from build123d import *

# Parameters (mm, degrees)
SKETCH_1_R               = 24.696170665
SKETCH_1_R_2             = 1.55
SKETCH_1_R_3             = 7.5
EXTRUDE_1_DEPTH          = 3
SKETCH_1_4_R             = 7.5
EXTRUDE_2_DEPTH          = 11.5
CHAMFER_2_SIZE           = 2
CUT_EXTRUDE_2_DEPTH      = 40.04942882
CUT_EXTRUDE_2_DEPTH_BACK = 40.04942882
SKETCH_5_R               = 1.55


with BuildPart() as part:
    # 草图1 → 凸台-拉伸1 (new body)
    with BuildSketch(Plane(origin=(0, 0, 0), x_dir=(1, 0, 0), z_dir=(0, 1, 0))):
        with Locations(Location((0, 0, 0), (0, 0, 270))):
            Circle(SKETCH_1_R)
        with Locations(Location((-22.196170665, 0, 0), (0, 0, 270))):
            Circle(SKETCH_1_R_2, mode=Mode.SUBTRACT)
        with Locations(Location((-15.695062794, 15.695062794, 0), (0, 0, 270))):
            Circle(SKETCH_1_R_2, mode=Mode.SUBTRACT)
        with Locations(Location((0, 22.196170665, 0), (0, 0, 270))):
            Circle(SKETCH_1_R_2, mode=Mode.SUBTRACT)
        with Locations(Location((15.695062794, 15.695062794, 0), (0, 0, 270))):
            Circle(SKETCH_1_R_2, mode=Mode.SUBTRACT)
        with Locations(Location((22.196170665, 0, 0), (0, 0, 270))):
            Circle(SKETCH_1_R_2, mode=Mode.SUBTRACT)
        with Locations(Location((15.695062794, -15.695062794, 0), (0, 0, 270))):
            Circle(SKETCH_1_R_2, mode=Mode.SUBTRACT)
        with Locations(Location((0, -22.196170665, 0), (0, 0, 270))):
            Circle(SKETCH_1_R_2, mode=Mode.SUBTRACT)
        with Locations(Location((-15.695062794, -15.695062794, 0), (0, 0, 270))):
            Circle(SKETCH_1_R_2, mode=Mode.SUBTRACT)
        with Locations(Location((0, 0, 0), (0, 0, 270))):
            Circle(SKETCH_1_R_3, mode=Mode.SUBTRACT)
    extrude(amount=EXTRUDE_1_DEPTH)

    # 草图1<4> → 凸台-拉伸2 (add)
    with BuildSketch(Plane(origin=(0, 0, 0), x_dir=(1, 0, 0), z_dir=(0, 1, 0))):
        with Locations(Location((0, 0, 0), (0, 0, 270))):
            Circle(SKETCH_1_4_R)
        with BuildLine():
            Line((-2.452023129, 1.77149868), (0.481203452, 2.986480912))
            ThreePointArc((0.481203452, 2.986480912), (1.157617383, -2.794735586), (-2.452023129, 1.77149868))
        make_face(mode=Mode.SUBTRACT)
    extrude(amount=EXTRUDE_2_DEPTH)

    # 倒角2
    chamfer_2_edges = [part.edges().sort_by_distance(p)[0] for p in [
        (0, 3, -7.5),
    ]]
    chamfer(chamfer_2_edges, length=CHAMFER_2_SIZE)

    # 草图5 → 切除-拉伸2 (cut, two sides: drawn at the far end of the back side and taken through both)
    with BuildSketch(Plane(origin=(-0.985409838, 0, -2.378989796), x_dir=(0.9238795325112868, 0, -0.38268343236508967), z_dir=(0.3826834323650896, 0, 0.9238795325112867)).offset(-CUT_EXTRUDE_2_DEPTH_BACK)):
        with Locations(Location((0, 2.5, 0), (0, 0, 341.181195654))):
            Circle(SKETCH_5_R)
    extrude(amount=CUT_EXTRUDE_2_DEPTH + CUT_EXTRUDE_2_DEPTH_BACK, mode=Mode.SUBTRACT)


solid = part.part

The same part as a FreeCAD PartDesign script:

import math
import FreeCAD as App
import Part
import Sketcher

V = App.Vector
Q = App.Units.Quantity


def edges_at(feature, points):
    """Names of the edges that pass closest to the given points."""
    edges = feature.Shape.Edges
    near = lambda p: min(range(len(edges)), key=lambda i: edges[i].distToShape(Part.Vertex(*p))[0])
    return sorted({f"Edge{near(p) + 1}" for p in points})

doc = App.newDocument("Part")
body = doc.addObject("PartDesign::Body", "Body")

sketch1 = body.newObject("Sketcher::SketchObject", "Sketch")
sketch1.AttachmentSupport = (doc.getObject("XZ_Plane"), [""])
sketch1.MapMode = "FlatFace"
sketch1.addGeometry([
    Part.Circle(V(0, 0, 0), V(0, 0, 1), 24.7),
    Part.Circle(V(-15.7, -15.7, 0), V(0, 0, 1), 1.6),
    Part.Circle(V(0, -22.2, 0), V(0, 0, 1), 1.6),
    Part.Circle(V(-22.2, 0, 0), V(0, 0, 1), 1.6),
    Part.Circle(V(-15.7, 15.7, 0), V(0, 0, 1), 1.6),
    Part.Circle(V(15.7, -15.7, 0), V(0, 0, 1), 1.6),
    Part.Circle(V(22.2, 0, 0), V(0, 0, 1), 1.6),
    Part.Circle(V(0, 0, 0), V(0, 0, 1), 7.5),
    Part.Circle(V(0, 22.2, 0), V(0, 0, 1), 1.6),
    Part.Circle(V(15.7, 15.7, 0), V(0, 0, 1), 1.6),
], False)
sketch1.addConstraint([
    Sketcher.Constraint("Coincident", 0, 3, -1, 1),
    Sketcher.Constraint("Coincident", 7, 3, -1, 1),
    Sketcher.Constraint("Equal", 1, 2),
    Sketcher.Constraint("Equal", 2, 3),
    Sketcher.Constraint("Equal", 3, 4),
    Sketcher.Constraint("Equal", 4, 5),
    Sketcher.Constraint("Equal", 5, 6),
    Sketcher.Constraint("Equal", 6, 8),
    Sketcher.Constraint("Equal", 8, 9),
    Sketcher.Constraint("Symmetric", 4, 3, 5, 3, -1, 1),
    Sketcher.Constraint("Symmetric", 3, 3, 6, 3, -1, 1),
    Sketcher.Constraint("Symmetric", 2, 3, 8, 3, -1, 1),
    Sketcher.Constraint("Symmetric", 1, 3, 9, 3, -1, 1),
    Sketcher.Constraint("Symmetric", 1, 3, 5, 3, -2),
    Sketcher.Constraint("PointOnObject", 2, 3, -2),
    Sketcher.Constraint("PointOnObject", 3, 3, -1),
    Sketcher.Constraint("Diameter", 7, 15.0),
    Sketcher.Constraint("Diameter", 1, 3.1),
    Sketcher.Constraint("Diameter", 0, 49.392341),
    Sketcher.Constraint("DistanceY", 2, 3, -1, 1, 22.196171),
    Sketcher.Constraint("DistanceX", 3, 3, -1, 1, 22.196171),
    Sketcher.Constraint("DistanceX", 1, 3, -1, 1, 15.695063),
    Sketcher.Constraint("DistanceY", 1, 3, -1, 1, 15.695063),
])
pad1 = body.newObject("PartDesign::Pad", "Pad")
pad1.Profile = sketch1
pad1.Length = 3
pad1.Reversed = True

sketch2 = body.newObject("Sketcher::SketchObject", "Sketch001")
sketch2.AttachmentSupport = (doc.getObject("XZ_Plane"), [""])
sketch2.MapMode = "FlatFace"
sketch2.addGeometry([
    Part.Circle(V(0, 0, 0), V(0, 0, 1), 7.5),
    Part.ArcOfCircle(Part.Circle(V(0, 0, 0), V(0, 0, 1), 3), math.radians(-81), math.radians(216)),
    Part.LineSegment(V(-2.5, -1.8, 0), V(0.5, -3, 0)),
], False)
sketch2.addConstraint([
    Sketcher.Constraint("Coincident", 1, 1, 2, 2),
    Sketcher.Constraint("Coincident", 2, 1, 1, 2),
    Sketcher.Constraint("Coincident", 0, 3, -1, 1),
    Sketcher.Constraint("Coincident", 1, 3, -1, 1),
    Sketcher.Constraint("Diameter", 0, 15.0),
    Sketcher.Constraint("Angle", 2, Q("-22.5 deg")),
    Sketcher.Constraint("Radius", 1, 3.025),
    Sketcher.Constraint("Distance", 2, 3.174902),
])
pad2 = body.newObject("PartDesign::Pad", "Pad001")
pad2.Profile = sketch2
pad2.Length = 11.5
pad2.Reversed = True
doc.recompute()

chamfer = body.newObject("PartDesign::Chamfer", "Chamfer")
chamfer.Base = (pad2, edges_at(pad2, [(0, 3, -7.5)]))
chamfer.Size = 2

sketch3 = body.newObject("Sketcher::SketchObject", "Sketch002")
sketch3.Placement = App.Placement(V(-0.98541, 0, -2.37899), App.Rotation(V(0.923879533, 0, -0.382683432), V(0, 1.000000001, 0), V(0.382683432, 0, 0.923879533), "ZXY"))
sketch3.addGeometry(Part.Circle(V(0, 2.5, 0), V(0, 0, 1), 1.6), False)
sketch3.addConstraint([
    Sketcher.Constraint("PointOnObject", 0, 3, -2),
    Sketcher.Constraint("Diameter", 0, 3.1),
    Sketcher.Constraint("DistanceY", -1, 1, 0, 3, 2.5),
])
pocket1 = body.newObject("PartDesign::Pocket", "Pocket")
pocket1.Profile = sketch3
pocket1.Type = "ThroughAll"
pocket1.Midplane = True

doc.recompute()
